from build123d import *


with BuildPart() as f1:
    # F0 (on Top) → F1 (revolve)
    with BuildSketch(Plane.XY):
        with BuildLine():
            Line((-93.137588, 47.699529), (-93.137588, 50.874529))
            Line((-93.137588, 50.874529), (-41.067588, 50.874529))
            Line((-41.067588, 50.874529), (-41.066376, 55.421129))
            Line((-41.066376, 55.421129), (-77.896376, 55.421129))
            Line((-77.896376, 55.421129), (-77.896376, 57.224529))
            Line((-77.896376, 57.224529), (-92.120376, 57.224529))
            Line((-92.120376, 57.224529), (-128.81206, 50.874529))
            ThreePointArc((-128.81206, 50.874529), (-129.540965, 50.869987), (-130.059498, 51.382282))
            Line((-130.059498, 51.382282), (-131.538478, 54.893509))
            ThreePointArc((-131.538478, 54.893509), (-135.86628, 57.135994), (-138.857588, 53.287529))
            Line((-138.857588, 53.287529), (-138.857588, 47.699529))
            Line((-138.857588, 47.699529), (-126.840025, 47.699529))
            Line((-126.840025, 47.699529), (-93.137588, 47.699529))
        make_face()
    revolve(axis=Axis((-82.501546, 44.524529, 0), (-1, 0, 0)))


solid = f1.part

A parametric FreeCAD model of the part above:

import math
import FreeCAD as App
import Part
import Sketcher
Q = App.Units.Quantity

doc = App.newDocument("Part")
body = doc.addObject("PartDesign::Body", "Body")

# Sketch on XY plane
sketch1 = body.newObject("Sketcher::SketchObject", "Sketch")
sketch1.AttachmentSupport = (doc.getObject("XY_Plane"), [""])
sketch1.MapMode = "FlatFace"
sketch1.addGeometry([
    Part.LineSegment(App.Vector(-93.1, 47.7, 0), App.Vector(-93.1, 50.9, 0)),  # 0
    Part.LineSegment(App.Vector(-93.1, 50.9, 0), App.Vector(-41.1, 50.9, 0)),  # 1
    Part.LineSegment(App.Vector(-41.1, 50.9, 0), App.Vector(-41.1, 55.4, 0)),  # 2
    Part.LineSegment(App.Vector(-41.1, 55.4, 0), App.Vector(-77.9, 55.4, 0)),  # 3
    Part.LineSegment(App.Vector(-77.9, 55.4, 0), App.Vector(-77.9, 57.2, 0)),  # 4
    Part.LineSegment(App.Vector(-77.9, 57.2, 0), App.Vector(-92.1, 57.2, 0)),  # 5
    Part.LineSegment(App.Vector(-92.1, 57.2, 0), App.Vector(-128.8, 50.9, 0)),  # 6
    Part.ArcOfCircle(Part.Circle(App.Vector(-129.2, 51.8, 0), App.Vector(0, 0, 1), 1), math.radians(-157), math.radians(-67)),  # 7
    Part.LineSegment(App.Vector(-130.1, 51.4, 0), App.Vector(-131.5, 54.9, 0)),  # 8
    Part.ArcOfCircle(Part.Circle(App.Vector(-135, 53.4, 0), App.Vector(0, 0, 1), 3.8), math.radians(23), math.radians(182)),  # 9
    Part.LineSegment(App.Vector(-138.9, 53.3, 0), App.Vector(-138.9, 47.7, 0)),  # 10
    Part.LineSegment(App.Vector(-138.9, 47.7, 0), App.Vector(-93.1, 47.7, 0)),  # 11
], False)
sketch1.addGeometry(Part.LineSegment(App.Vector(-41.1, 44.5, 0), App.Vector(-138.9, 44.5, 0)), True)  # axis
sketch1.addConstraint([
    Sketcher.Constraint("Coincident", 0, 2, 1, 1),
    Sketcher.Constraint("Coincident", 1, 2, 2, 1),
    Sketcher.Constraint("Coincident", 2, 2, 3, 1),
    Sketcher.Constraint("Coincident", 3, 2, 4, 1),
    Sketcher.Constraint("Coincident", 4, 2, 5, 1),
    Sketcher.Constraint("Coincident", 5, 2, 6, 1),
    Sketcher.Constraint("Coincident", 6, 2, 7, 2),
    Sketcher.Constraint("Tangent", 7, 1, 8, 1),
    Sketcher.Constraint("Tangent", 8, 2, 9, 1),
    Sketcher.Constraint("Coincident", 9, 2, 10, 1),
    Sketcher.Constraint("Coincident", 10, 2, 11, 1),
    Sketcher.Constraint("Coincident", 11, 2, 0, 1),
    Sketcher.Constraint("Vertical", 0),
    Sketcher.Constraint("Horizontal", 1),
    Sketcher.Constraint("Horizontal", 3),
    Sketcher.Constraint("Vertical", 4),
    Sketcher.Constraint("Horizontal", 5),
    Sketcher.Constraint("Vertical", 10),
    Sketcher.Constraint("Horizontal", 11),
    Sketcher.Constraint("Horizontal", 12),
    Sketcher.Constraint("Horizontal", 1, 2, 6, 2),
    Sketcher.Constraint("Vertical", 2, 2, 12, 1),
    Sketcher.Constraint("Vertical", 10, 2, 12, 2),
    Sketcher.Constraint("Radius", 9, Q("0.15 in")),
    Sketcher.Constraint("DistanceX", 11, 1, 11, 2, Q("1.8 in")),
    Sketcher.Constraint("DistanceX", 1, 1, 1, 2, Q("2.05 in")),
    Sketcher.Constraint("DistanceX", 3, 2, 3, 1, Q("1.45 in")),
    Sketcher.Constraint("DistanceX", 5, 2, 5, 1, Q("0.56 in")),
    Sketcher.Constraint("DistanceY", 10, 2, 10, 1, Q("0.22 in")),
    Sketcher.Constraint("DistanceY", 0, 2, 9, 3, Q("0.1 in")),
    Sketcher.Constraint("DistanceY", 12, 1, 4, 2, Q("0.5 in")),
    Sketcher.Constraint("Distance", 8, Q("0.15 in")),
    Sketcher.Constraint("DistanceY", 0, 1, 0, 2, Q("0.125 in")),
    Sketcher.Constraint("DistanceY", 4, 1, 4, 2, Q("0.071 in")),
    Sketcher.Constraint("DistanceY", 0, 2, 4, 2, Q("0.25 in")),
    Sketcher.Constraint("Radius", 7, 0.952172),
    Sketcher.Constraint("DistanceX", 12, 2, 12, 1, 97.791212),
    Sketcher.Constraint("DistanceY", -1, 1, 7, 3, 51.7519),
    Sketcher.Constraint("DistanceX", 7, 1, -1, 1, 130.059498),
    Sketcher.Constraint("DistanceY", -1, 1, 9, 3, 53.414528),
])
revolution = body.newObject("PartDesign::Revolution", "Revolution")
revolution.Profile = sketch1
revolution.ReferenceAxis = (sketch1, ["Axis0"])
revolution.Angle = 360

doc.recompute()
